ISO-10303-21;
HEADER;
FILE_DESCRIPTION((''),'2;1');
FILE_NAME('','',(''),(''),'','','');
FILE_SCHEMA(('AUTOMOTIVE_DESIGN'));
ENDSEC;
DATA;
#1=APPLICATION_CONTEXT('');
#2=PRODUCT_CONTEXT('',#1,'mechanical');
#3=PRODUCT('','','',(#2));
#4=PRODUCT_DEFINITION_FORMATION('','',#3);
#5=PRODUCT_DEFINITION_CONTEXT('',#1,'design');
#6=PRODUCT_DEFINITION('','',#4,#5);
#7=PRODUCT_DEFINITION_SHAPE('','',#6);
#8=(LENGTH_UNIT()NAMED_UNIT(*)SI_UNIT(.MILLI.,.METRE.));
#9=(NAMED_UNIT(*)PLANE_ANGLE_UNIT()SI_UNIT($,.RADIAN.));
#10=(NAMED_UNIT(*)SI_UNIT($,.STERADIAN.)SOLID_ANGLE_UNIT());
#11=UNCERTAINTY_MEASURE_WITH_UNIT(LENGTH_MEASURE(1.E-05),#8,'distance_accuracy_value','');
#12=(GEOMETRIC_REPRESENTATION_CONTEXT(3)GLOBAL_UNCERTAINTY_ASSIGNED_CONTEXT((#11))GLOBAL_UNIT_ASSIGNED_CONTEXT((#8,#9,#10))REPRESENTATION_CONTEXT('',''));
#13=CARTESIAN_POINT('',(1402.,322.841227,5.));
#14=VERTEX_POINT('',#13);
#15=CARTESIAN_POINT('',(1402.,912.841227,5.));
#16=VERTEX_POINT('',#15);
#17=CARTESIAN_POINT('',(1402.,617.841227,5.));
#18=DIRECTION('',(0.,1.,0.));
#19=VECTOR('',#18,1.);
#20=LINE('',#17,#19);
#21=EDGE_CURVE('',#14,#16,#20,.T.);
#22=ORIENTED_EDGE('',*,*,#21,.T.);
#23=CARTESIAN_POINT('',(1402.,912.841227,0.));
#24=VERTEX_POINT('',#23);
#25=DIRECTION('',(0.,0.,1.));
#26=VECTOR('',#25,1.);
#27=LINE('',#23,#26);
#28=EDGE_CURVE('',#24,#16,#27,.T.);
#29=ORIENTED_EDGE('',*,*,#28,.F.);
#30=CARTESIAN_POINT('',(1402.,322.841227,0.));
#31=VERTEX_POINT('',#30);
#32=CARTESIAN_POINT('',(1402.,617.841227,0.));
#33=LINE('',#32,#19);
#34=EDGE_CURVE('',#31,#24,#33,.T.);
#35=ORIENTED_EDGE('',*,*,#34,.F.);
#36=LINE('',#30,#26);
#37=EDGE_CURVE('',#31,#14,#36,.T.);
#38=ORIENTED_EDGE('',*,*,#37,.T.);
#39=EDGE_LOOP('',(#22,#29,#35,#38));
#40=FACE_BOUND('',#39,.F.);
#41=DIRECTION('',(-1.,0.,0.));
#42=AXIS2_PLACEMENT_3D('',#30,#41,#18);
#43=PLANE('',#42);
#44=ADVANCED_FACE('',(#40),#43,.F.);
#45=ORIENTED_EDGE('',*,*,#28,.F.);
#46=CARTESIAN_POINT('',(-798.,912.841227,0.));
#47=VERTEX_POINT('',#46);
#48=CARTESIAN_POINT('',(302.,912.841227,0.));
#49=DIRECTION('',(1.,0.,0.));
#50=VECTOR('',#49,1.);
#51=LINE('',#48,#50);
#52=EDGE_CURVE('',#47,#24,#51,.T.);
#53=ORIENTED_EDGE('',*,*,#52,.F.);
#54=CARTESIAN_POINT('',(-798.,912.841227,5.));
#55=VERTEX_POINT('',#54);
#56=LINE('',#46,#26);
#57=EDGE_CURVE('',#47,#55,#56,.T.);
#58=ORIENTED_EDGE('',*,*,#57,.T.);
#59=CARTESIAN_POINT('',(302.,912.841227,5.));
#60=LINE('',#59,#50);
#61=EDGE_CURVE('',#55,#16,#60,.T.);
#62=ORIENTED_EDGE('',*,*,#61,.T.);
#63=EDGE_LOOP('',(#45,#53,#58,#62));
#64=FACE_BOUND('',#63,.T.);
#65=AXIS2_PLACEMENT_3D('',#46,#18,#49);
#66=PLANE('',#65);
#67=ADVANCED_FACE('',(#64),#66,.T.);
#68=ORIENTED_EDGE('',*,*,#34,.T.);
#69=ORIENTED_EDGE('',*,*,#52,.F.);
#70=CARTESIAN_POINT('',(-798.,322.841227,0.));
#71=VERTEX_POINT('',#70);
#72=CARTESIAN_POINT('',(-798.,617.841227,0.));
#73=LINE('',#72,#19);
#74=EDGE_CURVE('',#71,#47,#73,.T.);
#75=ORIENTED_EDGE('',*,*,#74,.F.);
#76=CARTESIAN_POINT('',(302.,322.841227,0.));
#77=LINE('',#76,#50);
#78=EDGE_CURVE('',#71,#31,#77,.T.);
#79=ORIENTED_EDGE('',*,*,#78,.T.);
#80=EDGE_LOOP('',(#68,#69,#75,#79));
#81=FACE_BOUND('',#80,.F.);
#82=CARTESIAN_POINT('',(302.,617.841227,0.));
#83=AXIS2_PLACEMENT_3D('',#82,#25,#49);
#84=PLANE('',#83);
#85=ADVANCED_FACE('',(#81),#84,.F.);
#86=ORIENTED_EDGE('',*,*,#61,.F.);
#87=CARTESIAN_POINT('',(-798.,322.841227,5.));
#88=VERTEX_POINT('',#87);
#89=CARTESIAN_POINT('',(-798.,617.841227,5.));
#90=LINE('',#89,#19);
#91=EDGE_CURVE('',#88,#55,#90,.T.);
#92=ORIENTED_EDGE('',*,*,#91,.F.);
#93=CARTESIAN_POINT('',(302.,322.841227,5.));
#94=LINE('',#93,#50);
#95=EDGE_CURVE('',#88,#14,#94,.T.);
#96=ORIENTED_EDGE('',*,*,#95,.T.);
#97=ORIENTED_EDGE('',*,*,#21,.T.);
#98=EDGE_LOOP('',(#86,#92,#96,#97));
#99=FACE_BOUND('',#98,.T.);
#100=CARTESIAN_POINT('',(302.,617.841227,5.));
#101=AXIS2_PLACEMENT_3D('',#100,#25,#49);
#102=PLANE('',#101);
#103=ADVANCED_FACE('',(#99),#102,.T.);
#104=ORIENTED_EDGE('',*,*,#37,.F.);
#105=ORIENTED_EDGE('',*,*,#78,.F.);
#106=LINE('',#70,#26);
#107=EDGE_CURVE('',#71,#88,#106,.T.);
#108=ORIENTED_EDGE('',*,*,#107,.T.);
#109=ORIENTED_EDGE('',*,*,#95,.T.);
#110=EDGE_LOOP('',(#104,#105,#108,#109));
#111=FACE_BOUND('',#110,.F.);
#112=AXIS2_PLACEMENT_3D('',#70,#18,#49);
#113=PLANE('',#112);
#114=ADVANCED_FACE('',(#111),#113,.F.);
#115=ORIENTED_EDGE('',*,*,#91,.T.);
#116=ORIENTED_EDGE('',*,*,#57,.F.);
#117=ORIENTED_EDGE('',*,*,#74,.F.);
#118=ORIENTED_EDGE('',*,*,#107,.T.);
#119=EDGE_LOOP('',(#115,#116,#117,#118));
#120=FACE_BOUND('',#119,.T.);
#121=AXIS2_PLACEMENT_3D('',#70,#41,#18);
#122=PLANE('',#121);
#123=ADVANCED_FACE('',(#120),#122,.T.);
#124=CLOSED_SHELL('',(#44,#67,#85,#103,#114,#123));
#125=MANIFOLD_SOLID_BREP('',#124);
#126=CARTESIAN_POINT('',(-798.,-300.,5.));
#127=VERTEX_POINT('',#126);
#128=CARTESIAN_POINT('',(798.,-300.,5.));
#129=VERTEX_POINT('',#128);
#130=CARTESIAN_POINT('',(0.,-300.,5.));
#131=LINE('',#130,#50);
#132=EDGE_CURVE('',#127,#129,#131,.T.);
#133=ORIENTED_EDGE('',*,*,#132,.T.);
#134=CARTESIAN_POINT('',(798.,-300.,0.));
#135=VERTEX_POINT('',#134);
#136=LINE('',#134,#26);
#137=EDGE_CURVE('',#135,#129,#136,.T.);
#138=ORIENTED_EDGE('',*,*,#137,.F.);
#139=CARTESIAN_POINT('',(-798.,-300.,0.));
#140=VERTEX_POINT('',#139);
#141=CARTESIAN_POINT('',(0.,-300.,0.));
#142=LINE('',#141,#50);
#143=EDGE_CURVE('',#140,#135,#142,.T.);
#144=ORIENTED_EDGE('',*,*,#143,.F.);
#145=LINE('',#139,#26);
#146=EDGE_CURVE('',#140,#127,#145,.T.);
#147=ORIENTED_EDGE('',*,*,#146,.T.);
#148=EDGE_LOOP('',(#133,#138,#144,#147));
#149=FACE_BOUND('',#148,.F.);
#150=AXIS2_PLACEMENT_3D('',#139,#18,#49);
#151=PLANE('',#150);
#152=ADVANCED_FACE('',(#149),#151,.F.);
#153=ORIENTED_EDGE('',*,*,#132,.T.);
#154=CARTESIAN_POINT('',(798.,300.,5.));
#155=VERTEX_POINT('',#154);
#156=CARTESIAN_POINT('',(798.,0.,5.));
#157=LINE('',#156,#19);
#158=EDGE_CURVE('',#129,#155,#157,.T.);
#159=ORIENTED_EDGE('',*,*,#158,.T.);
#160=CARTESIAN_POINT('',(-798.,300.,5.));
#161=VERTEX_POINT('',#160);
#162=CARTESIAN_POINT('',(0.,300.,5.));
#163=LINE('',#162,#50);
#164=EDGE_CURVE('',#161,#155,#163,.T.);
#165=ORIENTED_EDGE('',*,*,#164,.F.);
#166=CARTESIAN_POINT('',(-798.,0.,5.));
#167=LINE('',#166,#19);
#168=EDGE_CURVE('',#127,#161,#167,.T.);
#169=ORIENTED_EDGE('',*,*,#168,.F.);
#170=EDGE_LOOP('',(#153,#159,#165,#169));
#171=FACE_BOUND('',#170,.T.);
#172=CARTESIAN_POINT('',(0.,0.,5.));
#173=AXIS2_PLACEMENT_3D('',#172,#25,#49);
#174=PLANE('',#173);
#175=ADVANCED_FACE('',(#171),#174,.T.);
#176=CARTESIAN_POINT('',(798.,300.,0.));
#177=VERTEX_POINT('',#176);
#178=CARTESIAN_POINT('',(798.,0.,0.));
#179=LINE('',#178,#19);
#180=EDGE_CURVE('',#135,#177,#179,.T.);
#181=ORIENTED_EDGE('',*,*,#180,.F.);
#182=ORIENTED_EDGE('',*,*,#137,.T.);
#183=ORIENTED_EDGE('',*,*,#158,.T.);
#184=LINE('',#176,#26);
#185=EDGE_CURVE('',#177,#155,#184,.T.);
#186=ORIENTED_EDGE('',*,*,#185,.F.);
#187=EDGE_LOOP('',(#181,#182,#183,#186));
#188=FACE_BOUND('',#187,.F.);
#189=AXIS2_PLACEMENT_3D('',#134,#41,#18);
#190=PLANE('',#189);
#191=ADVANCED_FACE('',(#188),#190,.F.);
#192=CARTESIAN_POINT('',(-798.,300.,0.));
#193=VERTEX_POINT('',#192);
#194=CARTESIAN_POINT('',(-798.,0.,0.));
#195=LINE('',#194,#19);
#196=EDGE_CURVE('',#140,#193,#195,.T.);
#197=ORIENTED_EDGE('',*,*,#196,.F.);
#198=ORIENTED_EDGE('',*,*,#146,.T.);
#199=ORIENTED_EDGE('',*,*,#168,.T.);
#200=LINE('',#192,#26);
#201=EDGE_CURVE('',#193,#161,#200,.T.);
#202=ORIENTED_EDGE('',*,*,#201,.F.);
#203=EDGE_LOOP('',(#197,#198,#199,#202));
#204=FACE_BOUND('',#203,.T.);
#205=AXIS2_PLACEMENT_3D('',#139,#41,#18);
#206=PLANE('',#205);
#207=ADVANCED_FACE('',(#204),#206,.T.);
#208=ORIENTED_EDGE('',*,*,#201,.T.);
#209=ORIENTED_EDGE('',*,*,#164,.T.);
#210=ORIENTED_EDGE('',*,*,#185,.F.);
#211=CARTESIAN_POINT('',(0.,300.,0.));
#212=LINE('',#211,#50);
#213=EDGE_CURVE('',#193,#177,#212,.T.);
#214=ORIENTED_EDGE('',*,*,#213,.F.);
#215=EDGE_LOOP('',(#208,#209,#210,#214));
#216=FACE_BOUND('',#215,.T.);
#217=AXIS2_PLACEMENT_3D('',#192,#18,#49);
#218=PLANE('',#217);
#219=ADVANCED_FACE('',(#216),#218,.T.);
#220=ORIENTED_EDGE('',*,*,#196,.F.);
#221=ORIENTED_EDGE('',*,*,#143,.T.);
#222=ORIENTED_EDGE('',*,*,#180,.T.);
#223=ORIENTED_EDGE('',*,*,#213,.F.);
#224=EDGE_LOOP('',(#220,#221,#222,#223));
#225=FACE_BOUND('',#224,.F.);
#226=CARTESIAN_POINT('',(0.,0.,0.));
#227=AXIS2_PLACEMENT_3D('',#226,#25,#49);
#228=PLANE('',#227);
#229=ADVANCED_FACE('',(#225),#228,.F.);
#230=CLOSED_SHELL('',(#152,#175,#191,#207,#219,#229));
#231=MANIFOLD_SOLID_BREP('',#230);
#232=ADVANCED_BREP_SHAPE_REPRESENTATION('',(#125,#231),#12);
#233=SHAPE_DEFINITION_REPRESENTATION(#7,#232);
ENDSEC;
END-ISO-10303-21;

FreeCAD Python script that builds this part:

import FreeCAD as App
import Part
import Sketcher

doc = App.newDocument("Part")
params = doc.addObject("Spreadsheet::Sheet", "Params")
for row, (alias, value) in enumerate([
    ("sketch1_width", "1596 mm"),
    ("sketch1_width2", "2200 mm"),
    ("sketch1_height", "600 mm"),
    ("sketch1_height2", "590 mm"),
    ("pad1_length", "5 mm"),
], start=1):
    params.set(f"A{row}", alias)
    params.set(f"B{row}", "=" + value)
    params.setAlias(f"B{row}", alias)

body = doc.addObject("PartDesign::Body", "Body")
body.AllowCompound = True

# Sketch on XY plane
sketch1 = body.newObject("Sketcher::SketchObject", "Sketch")
sketch1.AttachmentSupport = (doc.getObject("XY_Plane"), [""])
sketch1.MapMode = "FlatFace"
sketch1.addGeometry([
    Part.LineSegment(App.Vector(-798, 300, 0), App.Vector(-798, -300, 0)),  # 0
    Part.LineSegment(App.Vector(-798, -300, 0), App.Vector(798, -300, 0)),  # 1
    Part.LineSegment(App.Vector(798, -300, 0), App.Vector(798, 300, 0)),  # 2
    Part.LineSegment(App.Vector(798, 300, 0), App.Vector(-798, 300, 0)),  # 3
    Part.LineSegment(App.Vector(-798, 913, 0), App.Vector(-798, 323, 0)),  # 4
    Part.LineSegment(App.Vector(-798, 323, 0), App.Vector(1402, 323, 0)),  # 5
    Part.LineSegment(App.Vector(1402, 323, 0), App.Vector(1402, 913, 0)),  # 6
    Part.LineSegment(App.Vector(1402, 913, 0), App.Vector(-798, 913, 0)),  # 7
], False)
sketch1.addConstraint([
    Sketcher.Constraint("Coincident", 0, 2, 1, 1),
    Sketcher.Constraint("Coincident", 1, 2, 2, 1),
    Sketcher.Constraint("Coincident", 2, 2, 3, 1),
    Sketcher.Constraint("Coincident", 3, 2, 0, 1),
    Sketcher.Constraint("Coincident", 4, 2, 5, 1),
    Sketcher.Constraint("Coincident", 5, 2, 6, 1),
    Sketcher.Constraint("Coincident", 6, 2, 7, 1),
    Sketcher.Constraint("Coincident", 7, 2, 4, 1),
    Sketcher.Constraint("Vertical", 0),
    Sketcher.Constraint("Horizontal", 1),
    Sketcher.Constraint("Vertical", 2),
    Sketcher.Constraint("Horizontal", 3),
    Sketcher.Constraint("Vertical", 4),
    Sketcher.Constraint("Horizontal", 5),
    Sketcher.Constraint("Vertical", 6),
    Sketcher.Constraint("Horizontal", 7),
    Sketcher.Constraint("Symmetric", 0, 2, 2, 2, -1, 1),
    Sketcher.Constraint("Vertical", 3, 2, 4, 2),
    Sketcher.Constraint("DistanceX", 1, 1, 1, 2, 1596.0),
    Sketcher.Constraint("DistanceX", 5, 1, 5, 2, 2200.0),
    Sketcher.Constraint("DistanceY", 0, 2, 0, 1, 600.0),
    Sketcher.Constraint("DistanceY", 4, 2, 4, 1, 590.0),
    Sketcher.Constraint("DistanceY", -1, 1, 4, 2, 322.841227),
])
sketch1.setExpression("Constraints[18]", "Params.sketch1_width")
sketch1.setExpression("Constraints[19]", "Params.sketch1_width2")
sketch1.setExpression("Constraints[20]", "Params.sketch1_height")
sketch1.setExpression("Constraints[21]", "Params.sketch1_height2")
pad1 = body.newObject("PartDesign::Pad", "Pad")
pad1.Profile = sketch1
pad1.setExpression("Length", "Params.pad1_length")

doc.recompute()
